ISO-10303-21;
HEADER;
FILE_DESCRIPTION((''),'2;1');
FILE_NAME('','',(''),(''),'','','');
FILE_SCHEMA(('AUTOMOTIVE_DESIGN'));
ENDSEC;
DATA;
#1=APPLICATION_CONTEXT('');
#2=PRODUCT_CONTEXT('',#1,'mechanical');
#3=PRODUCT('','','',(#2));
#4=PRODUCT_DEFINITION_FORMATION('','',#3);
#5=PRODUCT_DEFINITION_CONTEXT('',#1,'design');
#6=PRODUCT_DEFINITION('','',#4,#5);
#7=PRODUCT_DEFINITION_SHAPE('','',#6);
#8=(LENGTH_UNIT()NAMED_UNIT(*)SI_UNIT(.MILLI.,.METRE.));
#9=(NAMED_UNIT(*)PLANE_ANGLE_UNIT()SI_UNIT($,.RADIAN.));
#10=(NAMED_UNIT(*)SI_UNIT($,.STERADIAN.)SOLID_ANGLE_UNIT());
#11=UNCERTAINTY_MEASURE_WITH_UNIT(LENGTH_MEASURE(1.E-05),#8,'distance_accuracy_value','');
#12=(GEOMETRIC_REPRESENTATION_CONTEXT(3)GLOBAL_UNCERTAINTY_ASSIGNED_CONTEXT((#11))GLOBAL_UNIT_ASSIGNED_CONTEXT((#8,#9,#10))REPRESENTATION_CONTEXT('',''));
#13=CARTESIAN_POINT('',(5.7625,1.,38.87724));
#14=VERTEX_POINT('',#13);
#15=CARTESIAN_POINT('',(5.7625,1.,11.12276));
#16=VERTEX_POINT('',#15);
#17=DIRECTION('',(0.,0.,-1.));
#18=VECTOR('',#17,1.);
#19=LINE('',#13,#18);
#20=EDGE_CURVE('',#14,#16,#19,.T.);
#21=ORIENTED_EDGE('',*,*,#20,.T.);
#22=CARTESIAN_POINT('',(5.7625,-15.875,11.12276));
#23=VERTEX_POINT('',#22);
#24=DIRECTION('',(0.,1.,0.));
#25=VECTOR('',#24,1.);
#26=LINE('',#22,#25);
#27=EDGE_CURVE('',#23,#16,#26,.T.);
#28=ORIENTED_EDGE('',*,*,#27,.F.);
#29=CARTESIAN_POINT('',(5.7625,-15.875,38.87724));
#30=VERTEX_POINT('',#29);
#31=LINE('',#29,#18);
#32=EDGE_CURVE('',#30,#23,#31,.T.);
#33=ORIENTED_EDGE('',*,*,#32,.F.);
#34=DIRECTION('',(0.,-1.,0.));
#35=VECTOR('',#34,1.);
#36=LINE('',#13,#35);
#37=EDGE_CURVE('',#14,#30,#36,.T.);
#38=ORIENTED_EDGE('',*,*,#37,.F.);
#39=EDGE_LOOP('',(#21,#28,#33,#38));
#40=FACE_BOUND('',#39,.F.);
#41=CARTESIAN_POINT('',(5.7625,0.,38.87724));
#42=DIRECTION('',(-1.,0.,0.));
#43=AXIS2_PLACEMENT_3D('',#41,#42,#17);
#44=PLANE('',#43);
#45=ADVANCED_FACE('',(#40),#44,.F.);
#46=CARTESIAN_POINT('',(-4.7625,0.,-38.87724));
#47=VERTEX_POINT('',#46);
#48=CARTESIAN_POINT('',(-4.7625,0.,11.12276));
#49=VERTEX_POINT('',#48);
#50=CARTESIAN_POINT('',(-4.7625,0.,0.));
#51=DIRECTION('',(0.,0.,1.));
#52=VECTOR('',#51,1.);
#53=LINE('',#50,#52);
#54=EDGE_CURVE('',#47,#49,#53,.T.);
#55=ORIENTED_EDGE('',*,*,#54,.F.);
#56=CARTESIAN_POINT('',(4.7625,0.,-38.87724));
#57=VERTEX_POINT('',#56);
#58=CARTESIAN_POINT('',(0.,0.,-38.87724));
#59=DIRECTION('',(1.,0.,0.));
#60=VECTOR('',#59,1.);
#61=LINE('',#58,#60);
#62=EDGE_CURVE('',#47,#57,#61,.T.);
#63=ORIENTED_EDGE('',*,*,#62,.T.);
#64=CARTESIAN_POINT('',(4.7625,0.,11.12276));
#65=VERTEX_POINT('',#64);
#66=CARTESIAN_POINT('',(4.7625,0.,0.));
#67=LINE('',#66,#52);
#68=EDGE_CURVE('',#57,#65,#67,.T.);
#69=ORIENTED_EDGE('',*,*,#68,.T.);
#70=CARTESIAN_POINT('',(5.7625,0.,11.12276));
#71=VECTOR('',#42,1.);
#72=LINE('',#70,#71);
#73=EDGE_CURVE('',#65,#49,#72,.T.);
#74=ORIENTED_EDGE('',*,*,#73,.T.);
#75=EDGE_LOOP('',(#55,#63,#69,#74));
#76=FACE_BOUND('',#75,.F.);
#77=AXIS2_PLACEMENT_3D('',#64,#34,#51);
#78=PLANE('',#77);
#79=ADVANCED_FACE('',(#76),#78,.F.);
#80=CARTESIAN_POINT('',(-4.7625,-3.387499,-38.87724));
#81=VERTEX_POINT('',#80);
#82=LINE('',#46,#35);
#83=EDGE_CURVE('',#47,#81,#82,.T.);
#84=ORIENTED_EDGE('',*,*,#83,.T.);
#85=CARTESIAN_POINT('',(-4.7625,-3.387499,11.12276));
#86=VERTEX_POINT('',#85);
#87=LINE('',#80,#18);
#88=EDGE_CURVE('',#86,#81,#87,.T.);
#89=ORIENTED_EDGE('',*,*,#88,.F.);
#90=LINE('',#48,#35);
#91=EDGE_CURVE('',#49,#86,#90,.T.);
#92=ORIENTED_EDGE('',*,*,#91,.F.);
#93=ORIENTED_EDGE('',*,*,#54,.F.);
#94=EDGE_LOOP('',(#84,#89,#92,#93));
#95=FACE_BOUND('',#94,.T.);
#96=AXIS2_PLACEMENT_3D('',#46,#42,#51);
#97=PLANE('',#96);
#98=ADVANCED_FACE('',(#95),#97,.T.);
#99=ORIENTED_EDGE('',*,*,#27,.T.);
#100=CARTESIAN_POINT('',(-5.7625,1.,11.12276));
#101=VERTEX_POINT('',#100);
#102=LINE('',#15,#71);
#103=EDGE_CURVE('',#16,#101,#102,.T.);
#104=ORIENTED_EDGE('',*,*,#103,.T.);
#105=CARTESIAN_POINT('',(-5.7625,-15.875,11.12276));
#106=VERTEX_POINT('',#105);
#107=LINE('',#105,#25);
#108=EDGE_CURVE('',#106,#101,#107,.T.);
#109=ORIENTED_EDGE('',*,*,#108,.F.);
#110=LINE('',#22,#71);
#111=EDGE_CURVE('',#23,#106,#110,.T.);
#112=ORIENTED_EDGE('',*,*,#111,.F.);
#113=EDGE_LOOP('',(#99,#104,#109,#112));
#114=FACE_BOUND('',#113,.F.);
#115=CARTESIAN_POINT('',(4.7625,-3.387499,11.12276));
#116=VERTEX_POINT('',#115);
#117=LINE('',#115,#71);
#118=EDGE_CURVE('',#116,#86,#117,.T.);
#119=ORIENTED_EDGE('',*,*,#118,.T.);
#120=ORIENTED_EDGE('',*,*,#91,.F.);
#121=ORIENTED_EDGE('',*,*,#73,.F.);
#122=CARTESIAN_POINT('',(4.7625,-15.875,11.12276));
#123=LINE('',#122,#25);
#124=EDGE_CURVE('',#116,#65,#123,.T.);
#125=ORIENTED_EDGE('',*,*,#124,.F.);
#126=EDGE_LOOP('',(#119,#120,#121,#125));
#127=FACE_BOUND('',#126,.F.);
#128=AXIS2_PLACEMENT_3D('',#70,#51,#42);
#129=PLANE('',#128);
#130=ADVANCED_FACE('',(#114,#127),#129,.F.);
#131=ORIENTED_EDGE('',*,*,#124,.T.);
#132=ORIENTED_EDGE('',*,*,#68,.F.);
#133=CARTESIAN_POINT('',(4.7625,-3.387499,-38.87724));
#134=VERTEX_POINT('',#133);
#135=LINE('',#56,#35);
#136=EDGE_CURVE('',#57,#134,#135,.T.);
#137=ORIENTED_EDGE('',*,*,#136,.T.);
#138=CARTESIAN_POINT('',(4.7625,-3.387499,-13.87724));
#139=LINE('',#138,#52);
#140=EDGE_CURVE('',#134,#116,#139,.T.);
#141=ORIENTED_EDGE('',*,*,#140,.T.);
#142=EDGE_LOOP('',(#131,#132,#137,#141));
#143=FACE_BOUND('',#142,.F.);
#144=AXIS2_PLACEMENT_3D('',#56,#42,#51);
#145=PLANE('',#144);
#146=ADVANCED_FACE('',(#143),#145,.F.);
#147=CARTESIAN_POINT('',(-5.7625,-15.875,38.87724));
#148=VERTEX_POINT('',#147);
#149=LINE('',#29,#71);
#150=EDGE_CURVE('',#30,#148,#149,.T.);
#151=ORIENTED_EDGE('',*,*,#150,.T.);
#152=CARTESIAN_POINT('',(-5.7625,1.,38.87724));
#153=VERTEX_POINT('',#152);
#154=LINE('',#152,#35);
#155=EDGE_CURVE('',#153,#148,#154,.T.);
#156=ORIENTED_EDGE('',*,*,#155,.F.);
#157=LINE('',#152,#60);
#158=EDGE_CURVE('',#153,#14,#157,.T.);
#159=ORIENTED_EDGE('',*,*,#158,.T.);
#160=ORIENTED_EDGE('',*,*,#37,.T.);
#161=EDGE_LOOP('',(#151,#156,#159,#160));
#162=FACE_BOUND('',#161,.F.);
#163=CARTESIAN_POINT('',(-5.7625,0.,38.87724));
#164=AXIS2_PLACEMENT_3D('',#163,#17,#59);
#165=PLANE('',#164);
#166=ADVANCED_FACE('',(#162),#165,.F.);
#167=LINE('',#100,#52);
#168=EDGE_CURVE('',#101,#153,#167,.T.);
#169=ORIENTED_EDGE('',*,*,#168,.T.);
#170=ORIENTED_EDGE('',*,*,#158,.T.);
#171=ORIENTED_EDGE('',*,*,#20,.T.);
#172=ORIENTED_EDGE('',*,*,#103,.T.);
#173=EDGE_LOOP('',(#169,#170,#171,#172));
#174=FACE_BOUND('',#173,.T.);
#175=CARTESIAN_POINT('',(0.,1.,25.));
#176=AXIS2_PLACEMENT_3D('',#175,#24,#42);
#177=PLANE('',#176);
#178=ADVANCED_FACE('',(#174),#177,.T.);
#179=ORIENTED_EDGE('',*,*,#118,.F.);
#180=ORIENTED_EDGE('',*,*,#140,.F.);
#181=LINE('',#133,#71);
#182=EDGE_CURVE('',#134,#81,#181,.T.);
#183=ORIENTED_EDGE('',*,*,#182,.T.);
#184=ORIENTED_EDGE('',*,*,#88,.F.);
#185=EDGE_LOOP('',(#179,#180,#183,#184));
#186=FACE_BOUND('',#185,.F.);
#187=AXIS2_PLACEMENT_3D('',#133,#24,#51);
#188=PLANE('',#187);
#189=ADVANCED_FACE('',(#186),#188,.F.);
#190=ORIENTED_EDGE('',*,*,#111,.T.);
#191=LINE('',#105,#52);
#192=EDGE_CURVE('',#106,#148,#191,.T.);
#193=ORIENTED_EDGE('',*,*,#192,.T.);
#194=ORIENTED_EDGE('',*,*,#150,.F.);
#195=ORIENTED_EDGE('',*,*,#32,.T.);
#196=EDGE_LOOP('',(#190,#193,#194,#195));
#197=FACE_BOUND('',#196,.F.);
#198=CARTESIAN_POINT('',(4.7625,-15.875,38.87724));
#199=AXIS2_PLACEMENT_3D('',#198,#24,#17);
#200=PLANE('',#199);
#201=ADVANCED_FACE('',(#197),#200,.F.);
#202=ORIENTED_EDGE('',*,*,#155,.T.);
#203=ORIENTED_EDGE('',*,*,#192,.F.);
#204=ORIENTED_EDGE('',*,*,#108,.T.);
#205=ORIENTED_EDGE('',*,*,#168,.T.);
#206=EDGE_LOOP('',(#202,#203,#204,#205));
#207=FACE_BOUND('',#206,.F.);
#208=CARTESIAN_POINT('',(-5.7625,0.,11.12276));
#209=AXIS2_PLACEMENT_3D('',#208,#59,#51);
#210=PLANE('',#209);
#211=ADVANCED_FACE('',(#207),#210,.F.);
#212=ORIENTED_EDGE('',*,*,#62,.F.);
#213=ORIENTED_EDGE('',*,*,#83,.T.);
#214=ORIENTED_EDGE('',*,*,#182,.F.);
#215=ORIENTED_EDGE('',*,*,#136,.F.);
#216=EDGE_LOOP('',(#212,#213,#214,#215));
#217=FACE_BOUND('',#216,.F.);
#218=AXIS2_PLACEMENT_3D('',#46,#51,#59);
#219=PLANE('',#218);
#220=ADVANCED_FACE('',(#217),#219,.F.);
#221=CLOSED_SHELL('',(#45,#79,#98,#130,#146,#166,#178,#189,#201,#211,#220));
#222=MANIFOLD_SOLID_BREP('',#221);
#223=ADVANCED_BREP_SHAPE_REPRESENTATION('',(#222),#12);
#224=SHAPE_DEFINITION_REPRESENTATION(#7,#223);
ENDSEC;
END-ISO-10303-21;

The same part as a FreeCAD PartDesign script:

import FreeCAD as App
import Part
import Sketcher
from FreeCAD import Vector
Q = App.Units.Quantity

doc = App.newDocument("Part")
body = doc.addObject("PartDesign::Body", "Body")

sketch1 = body.newObject("Sketcher::SketchObject", "Sketch")
sketch1.AttachmentSupport = (doc.getObject("XZ_Plane"), [""])
sketch1.MapMode = "FlatFace"
sketch1.addGeometry(Part.LineSegment(Vector(-4.7625, 38.87724, 0), Vector(-4.7625, -38.87724, 0)), False)
sketch1.addGeometry(Part.LineSegment(Vector(-4.7625, -38.87724, 0), Vector(4.7625, -38.87724, 0)), False)
sketch1.addGeometry(Part.LineSegment(Vector(4.7625, -38.87724, 0), Vector(4.7625, 38.87724, 0)), False)
sketch1.addGeometry(Part.LineSegment(Vector(4.7625, 38.87724, 0), Vector(-4.7625, 38.87724, 0)), False)
sketch1.addConstraint(Sketcher.Constraint("Coincident", 0, 2, 1, 1))
sketch1.addConstraint(Sketcher.Constraint("Coincident", 1, 2, 2, 1))
sketch1.addConstraint(Sketcher.Constraint("Coincident", 2, 2, 3, 1))
sketch1.addConstraint(Sketcher.Constraint("Coincident", 3, 2, 0, 1))
sketch1.addConstraint(Sketcher.Constraint("Vertical", 0))
sketch1.addConstraint(Sketcher.Constraint("Horizontal", 1))
sketch1.addConstraint(Sketcher.Constraint("Vertical", 2))
sketch1.addConstraint(Sketcher.Constraint("Horizontal", 3))
sketch1.addConstraint(Sketcher.Constraint("Symmetric", 0, 2, 2, 2, -1, 1))
sketch1.addConstraint(Sketcher.Constraint("DistanceX", 1, 1, 1, 2, Q("9.525 mm")))
sketch1.addConstraint(Sketcher.Constraint("DistanceY", 0, 2, 0, 1, Q("77.75448 mm")))
pad1 = body.newObject("PartDesign::Pad", "Pad")
pad1.Profile = sketch1
pad1.Length = 15.875

sketch2 = body.newObject("Sketcher::SketchObject", "Sketch001")
sketch2.AttachmentSupport = (doc.getObject("YZ_Plane"), [""])
sketch2.MapMode = "FlatFace"
sketch2.AttachmentOffset = App.Placement(Vector(0, 0, 4.7625), App.Rotation())
sketch2.addGeometry(Part.LineSegment(Vector(-15.875, 11.12276, 0), Vector(-15.875, -38.87724, 0)), False)
sketch2.addGeometry(Part.LineSegment(Vector(-15.875, -38.87724, 0), Vector(-3.387499, -38.87724, 0)), False)
sketch2.addGeometry(Part.LineSegment(Vector(-3.387499, -38.87724, 0), Vector(-3.387499, 11.12276, 0)), False)
sketch2.addGeometry(Part.LineSegment(Vector(-3.387499, 11.12276, 0), Vector(-15.875, 11.12276, 0)), False)
sketch2.addConstraint(Sketcher.Constraint("Coincident", 0, 2, 1, 1))
sketch2.addConstraint(Sketcher.Constraint("Coincident", 1, 2, 2, 1))
sketch2.addConstraint(Sketcher.Constraint("Coincident", 2, 2, 3, 1))
sketch2.addConstraint(Sketcher.Constraint("Coincident", 3, 2, 0, 1))
sketch2.addConstraint(Sketcher.Constraint("Vertical", 0))
sketch2.addConstraint(Sketcher.Constraint("Horizontal", 1))
sketch2.addConstraint(Sketcher.Constraint("Vertical", 2))
sketch2.addConstraint(Sketcher.Constraint("Horizontal", 3))
sketch2.addConstraint(Sketcher.Constraint("DistanceY", 0, 2, 0, 1, Q("50 mm")))
sketch2.addConstraint(Sketcher.Constraint("DistanceX", 1, 1, 1, 2, Q("12.487501 mm")))
sketch2.addConstraint(Sketcher.Constraint("DistanceX", 0, 2, -1, 1, Q("15.875 mm")))
sketch2.addConstraint(Sketcher.Constraint("DistanceY", 0, 2, -1, 1, Q("38.87724 mm")))
pocket1 = body.newObject("PartDesign::Pocket", "Pocket")
pocket1.Profile = sketch2
pocket1.Length = 25

sketch3 = body.newObject("Sketcher::SketchObject", "Sketch002")
sketch3.AttachmentSupport = (doc.getObject("YZ_Plane"), [""])
sketch3.MapMode = "FlatFace"
sketch3.AttachmentOffset = App.Placement(Vector(0, 0, -4.7625), App.Rotation())
sketch3.addGeometry(Part.LineSegment(Vector(0, 11.12276, 0), Vector(-15.875, 11.12276, 0)), False)
sketch3.addGeometry(Part.LineSegment(Vector(-15.875, 11.12276, 0), Vector(-15.875, 38.87724, 0)), False)
sketch3.addGeometry(Part.LineSegment(Vector(-15.875, 38.87724, 0), Vector(0, 38.87724, 0)), False)
sketch3.addGeometry(Part.LineSegment(Vector(0, 38.87724, 0), Vector(0, 11.12276, 0)), False)
sketch3.addConstraint(Sketcher.Constraint("Coincident", 0, 2, 1, 1))
sketch3.addConstraint(Sketcher.Constraint("Coincident", 1, 2, 2, 1))
sketch3.addConstraint(Sketcher.Constraint("Coincident", 2, 2, 3, 1))
sketch3.addConstraint(Sketcher.Constraint("Coincident", 3, 2, 0, 1))
sketch3.addConstraint(Sketcher.Constraint("Horizontal", 0))
sketch3.addConstraint(Sketcher.Constraint("Vertical", 1))
sketch3.addConstraint(Sketcher.Constraint("Horizontal", 2))
sketch3.addConstraint(Sketcher.Constraint("Vertical", 3))
sketch3.addConstraint(Sketcher.Constraint("PointOnObject", 2, 2, -2))
sketch3.addConstraint(Sketcher.Constraint("DistanceX", 0, 2, 0, 1, Q("15.875 mm")))
sketch3.addConstraint(Sketcher.Constraint("DistanceY", 1, 1, 1, 2, Q("27.75448 mm")))
sketch3.addConstraint(Sketcher.Constraint("DistanceY", -1, 1, 0, 2, Q("11.12276 mm")))
pad2 = body.newObject("PartDesign::Pad", "Pad001")
pad2.Profile = sketch3
pad2.Length = 1
pad2.Reversed = True

sketch4 = body.newObject("Sketcher::SketchObject", "Sketch003")
sketch4.AttachmentSupport = (doc.getObject("YZ_Plane"), [""])
sketch4.MapMode = "FlatFace"
sketch4.AttachmentOffset = App.Placement(Vector(0, 0, 4.7625), App.Rotation())
sketch4.addGeometry(Part.LineSegment(Vector(-15.875, 11.12276, 0), Vector(0, 11.12276, 0)), False)
sketch4.addGeometry(Part.LineSegment(Vector(0, 11.12276, 0), Vector(0, 38.87724, 0)), False)
sketch4.addGeometry(Part.LineSegment(Vector(0, 38.87724, 0), Vector(-15.875, 38.87724, 0)), False)
sketch4.addGeometry(Part.LineSegment(Vector(-15.875, 38.87724, 0), Vector(-15.875, 11.12276, 0)), False)
sketch4.addConstraint(Sketcher.Constraint("Coincident", 0, 2, 1, 1))
sketch4.addConstraint(Sketcher.Constraint("Coincident", 1, 2, 2, 1))
sketch4.addConstraint(Sketcher.Constraint("Coincident", 2, 2, 3, 1))
sketch4.addConstraint(Sketcher.Constraint("Coincident", 3, 2, 0, 1))
sketch4.addConstraint(Sketcher.Constraint("Horizontal", 0))
sketch4.addConstraint(Sketcher.Constraint("Vertical", 1))
sketch4.addConstraint(Sketcher.Constraint("Horizontal", 2))
sketch4.addConstraint(Sketcher.Constraint("Vertical", 3))
sketch4.addConstraint(Sketcher.Constraint("PointOnObject", 0, 2, -2))
sketch4.addConstraint(Sketcher.Constraint("DistanceX", 0, 1, 0, 2, Q("15.875 mm")))
sketch4.addConstraint(Sketcher.Constraint("DistanceY", 1, 1, 1, 2, Q("27.75448 mm")))
sketch4.addConstraint(Sketcher.Constraint("DistanceY", -1, 1, 0, 2, Q("11.12276 mm")))
pad3 = body.newObject("PartDesign::Pad", "Pad002")
pad3.Profile = sketch4
pad3.Length = 1

sketch5 = body.newObject("Sketcher::SketchObject", "Sketch004")
sketch5.AttachmentSupport = (doc.getObject("XZ_Plane"), [""])
sketch5.MapMode = "FlatFace"
sketch5.addGeometry(Part.LineSegment(Vector(5.7625, 38.87724, 0), Vector(5.7625, 11.12276, 0)), False)
sketch5.addGeometry(Part.LineSegment(Vector(5.7625, 11.12276, 0), Vector(-5.7625, 11.12276, 0)), False)
sketch5.addGeometry(Part.LineSegment(Vector(-5.7625, 11.12276, 0), Vector(-5.7625, 38.87724, 0)), False)
sketch5.addGeometry(Part.LineSegment(Vector(-5.7625, 38.87724, 0), Vector(5.7625, 38.87724, 0)), False)
sketch5.addConstraint(Sketcher.Constraint("Coincident", 0, 2, 1, 1))
sketch5.addConstraint(Sketcher.Constraint("Coincident", 1, 2, 2, 1))
sketch5.addConstraint(Sketcher.Constraint("Coincident", 2, 2, 3, 1))
sketch5.addConstraint(Sketcher.Constraint("Coincident", 3, 2, 0, 1))
sketch5.addConstraint(Sketcher.Constraint("Vertical", 0))
sketch5.addConstraint(Sketcher.Constraint("Horizontal", 1))
sketch5.addConstraint(Sketcher.Constraint("Vertical", 2))
sketch5.addConstraint(Sketcher.Constraint("Horizontal", 3))
sketch5.addConstraint(Sketcher.Constraint("DistanceX", 1, 2, 1, 1, Q("11.525 mm")))
sketch5.addConstraint(Sketcher.Constraint("DistanceY", 0, 2, 0, 1, Q("27.75448 mm")))
sketch5.addConstraint(Sketcher.Constraint("DistanceX", -1, 1, 0, 2, Q("5.7625 mm")))
sketch5.addConstraint(Sketcher.Constraint("DistanceY", -1, 1, 0, 2, Q("11.12276 mm")))
pad4 = body.newObject("PartDesign::Pad", "Pad003")
pad4.Profile = sketch5
pad4.Length = 1
pad4.Reversed = True

doc.recompute()
